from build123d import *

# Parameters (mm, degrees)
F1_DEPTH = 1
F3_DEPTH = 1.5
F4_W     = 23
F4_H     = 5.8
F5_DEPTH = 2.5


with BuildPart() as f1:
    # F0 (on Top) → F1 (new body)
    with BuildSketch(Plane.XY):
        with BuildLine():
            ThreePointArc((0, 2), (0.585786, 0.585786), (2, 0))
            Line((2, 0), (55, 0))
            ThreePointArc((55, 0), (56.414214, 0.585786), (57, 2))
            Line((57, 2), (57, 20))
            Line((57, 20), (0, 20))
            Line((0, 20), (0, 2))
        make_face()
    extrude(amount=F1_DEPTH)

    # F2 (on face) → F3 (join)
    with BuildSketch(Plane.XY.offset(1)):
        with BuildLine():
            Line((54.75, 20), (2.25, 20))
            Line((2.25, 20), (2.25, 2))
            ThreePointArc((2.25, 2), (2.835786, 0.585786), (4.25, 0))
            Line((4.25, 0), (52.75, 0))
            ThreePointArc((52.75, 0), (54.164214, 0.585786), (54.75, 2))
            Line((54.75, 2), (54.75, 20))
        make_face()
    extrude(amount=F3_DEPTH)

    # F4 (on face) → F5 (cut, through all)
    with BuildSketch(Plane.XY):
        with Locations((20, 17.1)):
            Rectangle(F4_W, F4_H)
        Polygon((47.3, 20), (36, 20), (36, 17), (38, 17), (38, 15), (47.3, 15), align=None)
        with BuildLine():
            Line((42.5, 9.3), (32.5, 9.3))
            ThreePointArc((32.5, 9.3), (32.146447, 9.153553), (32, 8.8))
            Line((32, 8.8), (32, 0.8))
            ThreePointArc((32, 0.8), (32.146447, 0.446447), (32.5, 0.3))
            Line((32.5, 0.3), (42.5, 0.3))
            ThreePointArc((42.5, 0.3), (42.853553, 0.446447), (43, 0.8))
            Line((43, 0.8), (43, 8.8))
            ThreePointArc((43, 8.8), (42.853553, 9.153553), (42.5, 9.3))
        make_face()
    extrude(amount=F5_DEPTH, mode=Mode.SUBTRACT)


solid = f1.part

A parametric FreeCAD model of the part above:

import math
import FreeCAD as App
import Part
import Sketcher

doc = App.newDocument("Part")
body = doc.addObject("PartDesign::Body", "Body")

# Sketch on XY plane
sketch1 = doc.addObject("Sketcher::SketchObject", "Sketch")
body.addObject(sketch1)
sketch1.AttachmentSupport = (doc.XY_Plane, [""])
sketch1.MapMode = "FlatFace"
sketch1.addGeometry([
    Part.ArcOfCircle(Part.Circle(App.Vector(2, 2, 0), App.Vector(0, 0, 1), 2), math.radians(180), math.radians(270)),  # 0
    Part.LineSegment(App.Vector(2, 0, 0), App.Vector(55, 0, 0)),  # 1
    Part.ArcOfCircle(Part.Circle(App.Vector(55, 2, 0), App.Vector(0, 0, 1), 2), math.radians(-90), math.radians(0)),  # 2
    Part.LineSegment(App.Vector(57, 2, 0), App.Vector(57, 20, 0)),  # 3
    Part.LineSegment(App.Vector(57, 20, 0), App.Vector(0, 20, 0)),  # 4
    Part.LineSegment(App.Vector(0, 20, 0), App.Vector(0, 2, 0)),  # 5
], False)
sketch1.addConstraint([
    Sketcher.Constraint("Tangent", 0, 2, 1, 1),
    Sketcher.Constraint("Tangent", 1, 2, 2, 1),
    Sketcher.Constraint("Tangent", 2, 2, 3, 1),
    Sketcher.Constraint("Coincident", 3, 2, 4, 1),
    Sketcher.Constraint("Coincident", 4, 2, 5, 1),
    Sketcher.Constraint("Tangent", 5, 2, 0, 1),
    Sketcher.Constraint("Horizontal", 1),
    Sketcher.Constraint("Vertical", 3),
    Sketcher.Constraint("Horizontal", 4),
    Sketcher.Constraint("Vertical", 5),
    Sketcher.Constraint("Equal", 0, 2),
    Sketcher.Constraint("PointOnObject", 0, 2, -1),
    Sketcher.Constraint("PointOnObject", 4, 2, -2),
    Sketcher.Constraint("Radius", 0, 1.999999),
    Sketcher.Constraint("DistanceX", 1, 1, 1, 2, 53.0),
    Sketcher.Constraint("DistanceY", 3, 1, 3, 2, 18.0),
])
pad1 = doc.addObject("PartDesign::Pad", "Pad")
body.addObject(pad1)
pad1.Profile = sketch1
pad1.Length = 1

# Sketch on XY plane
sketch2 = doc.addObject("Sketcher::SketchObject", "Sketch001")
body.addObject(sketch2)
sketch2.AttachmentSupport = (doc.XY_Plane, [""])
sketch2.MapMode = "FlatFace"
sketch2.AttachmentOffset = App.Placement(App.Vector(0, 0, 1), App.Rotation())
sketch2.addGeometry([
    Part.LineSegment(App.Vector(54.8, 20, 0), App.Vector(2.2, 20, 0)),  # 0
    Part.LineSegment(App.Vector(2.2, 20, 0), App.Vector(2.2, 2, 0)),  # 1
    Part.ArcOfCircle(Part.Circle(App.Vector(4.2, 2, 0), App.Vector(0, 0, 1), 2), math.radians(180), math.radians(270)),  # 2
    Part.LineSegment(App.Vector(4.2, 0, 0), App.Vector(52.8, 0, 0)),  # 3
    Part.ArcOfCircle(Part.Circle(App.Vector(52.8, 2, 0), App.Vector(0, 0, 1), 2), math.radians(-90), math.radians(0)),  # 4
    Part.LineSegment(App.Vector(54.8, 2, 0), App.Vector(54.8, 20, 0)),  # 5
], False)
sketch2.addConstraint([
    Sketcher.Constraint("Coincident", 0, 2, 1, 1),
    Sketcher.Constraint("Tangent", 1, 2, 2, 1),
    Sketcher.Constraint("Tangent", 2, 2, 3, 1),
    Sketcher.Constraint("Tangent", 3, 2, 4, 1),
    Sketcher.Constraint("Tangent", 4, 2, 5, 1),
    Sketcher.Constraint("Coincident", 5, 2, 0, 1),
    Sketcher.Constraint("Horizontal", 0),
    Sketcher.Constraint("Vertical", 1),
    Sketcher.Constraint("Horizontal", 3),
    Sketcher.Constraint("Vertical", 5),
    Sketcher.Constraint("Equal", 2, 4),
    Sketcher.Constraint("PointOnObject", 2, 2, -1),
    Sketcher.Constraint("Radius", 2, 1.999999),
    Sketcher.Constraint("DistanceY", 1, 2, 1, 1, 18.0),
    Sketcher.Constraint("DistanceX", 0, 2, 0, 1, 52.5),
    Sketcher.Constraint("DistanceX", -1, 1, 2, 3, 4.249999),
])
pad2 = doc.addObject("PartDesign::Pad", "Pad001")
body.addObject(pad2)
pad2.Profile = sketch2
pad2.Length = 1.5

# Sketch on XY plane
sketch3 = doc.addObject("Sketcher::SketchObject", "Sketch002")
body.addObject(sketch3)
sketch3.AttachmentSupport = (doc.XY_Plane, [""])
sketch3.MapMode = "FlatFace"
sketch3.addGeometry([
    Part.LineSegment(App.Vector(8.5, 20, 0), App.Vector(8.5, 14.2, 0)),  # 0
    Part.LineSegment(App.Vector(8.5, 14.2, 0), App.Vector(31.5, 14.2, 0)),  # 1
    Part.LineSegment(App.Vector(31.5, 14.2, 0), App.Vector(31.5, 20, 0)),  # 2
    Part.LineSegment(App.Vector(31.5, 20, 0), App.Vector(8.5, 20, 0)),  # 3
    Part.LineSegment(App.Vector(47.3, 20, 0), App.Vector(36, 20, 0)),  # 4
    Part.LineSegment(App.Vector(36, 20, 0), App.Vector(36, 17, 0)),  # 5
    Part.LineSegment(App.Vector(36, 17, 0), App.Vector(38, 17, 0)),  # 6
    Part.LineSegment(App.Vector(38, 17, 0), App.Vector(38, 15, 0)),  # 7
    Part.LineSegment(App.Vector(38, 15, 0), App.Vector(47.3, 15, 0)),  # 8
    Part.LineSegment(App.Vector(47.3, 15, 0), App.Vector(47.3, 20, 0)),  # 9
    Part.LineSegment(App.Vector(42.5, 9.3, 0), App.Vector(32.5, 9.3, 0)),  # 10
    Part.ArcOfCircle(Part.Circle(App.Vector(32.5, 8.8, 0), App.Vector(0, 0, 1), 0.5), math.radians(90), math.radians(180)),  # 11
    Part.LineSegment(App.Vector(32, 8.8, 0), App.Vector(32, 0.8, 0)),  # 12
    Part.ArcOfCircle(Part.Circle(App.Vector(32.5, 0.8, 0), App.Vector(0, 0, 1), 0.5), math.radians(-180), math.radians(-90)),  # 13
    Part.LineSegment(App.Vector(32.5, 0.3, 0), App.Vector(42.5, 0.3, 0)),  # 14
    Part.ArcOfCircle(Part.Circle(App.Vector(42.5, 0.8, 0), App.Vector(0, 0, 1), 0.5), math.radians(-90), math.radians(0)),  # 15
    Part.LineSegment(App.Vector(43, 0.8, 0), App.Vector(43, 8.8, 0)),  # 16
    Part.ArcOfCircle(Part.Circle(App.Vector(42.5, 8.8, 0), App.Vector(0, 0, 1), 0.5), math.radians(0), math.radians(90)),  # 17
], False)
sketch3.addConstraint([
    Sketcher.Constraint("Coincident", 0, 2, 1, 1),
    Sketcher.Constraint("Coincident", 1, 2, 2, 1),
    Sketcher.Constraint("Coincident", 2, 2, 3, 1),
    Sketcher.Constraint("Coincident", 3, 2, 0, 1),
    Sketcher.Constraint("Coincident", 4, 2, 5, 1),
    Sketcher.Constraint("Coincident", 5, 2, 6, 1),
    Sketcher.Constraint("Coincident", 6, 2, 7, 1),
    Sketcher.Constraint("Coincident", 7, 2, 8, 1),
    Sketcher.Constraint("Coincident", 8, 2, 9, 1),
    Sketcher.Constraint("Coincident", 9, 2, 4, 1),
    Sketcher.Constraint("Coincident", 10, 2, 11, 1),
    Sketcher.Constraint("Coincident", 11, 2, 12, 1),
    Sketcher.Constraint("Coincident", 12, 2, 13, 1),
    Sketcher.Constraint("Coincident", 13, 2, 14, 1),
    Sketcher.Constraint("Coincident", 14, 2, 15, 1),
    Sketcher.Constraint("Coincident", 15, 2, 16, 1),
    Sketcher.Constraint("Coincident", 16, 2, 17, 1),
    Sketcher.Constraint("Coincident", 17, 2, 10, 1),
    Sketcher.Constraint("Vertical", 0),
    Sketcher.Constraint("Horizontal", 1),
    Sketcher.Constraint("Vertical", 2),
    Sketcher.Constraint("Horizontal", 3),
    Sketcher.Constraint("Horizontal", 4),
    Sketcher.Constraint("Vertical", 5),
    Sketcher.Constraint("Horizontal", 6),
    Sketcher.Constraint("Vertical", 7),
    Sketcher.Constraint("Horizontal", 8),
    Sketcher.Constraint("Vertical", 9),
    Sketcher.Constraint("Horizontal", 10),
    Sketcher.Constraint("Vertical", 12),
    Sketcher.Constraint("Horizontal", 14),
    Sketcher.Constraint("Vertical", 16),
    Sketcher.Constraint("Equal", 11, 13),
    Sketcher.Constraint("Equal", 13, 15),
    Sketcher.Constraint("Equal", 15, 17),
    Sketcher.Constraint("Horizontal", 3, 2, 4, 2),
    Sketcher.Constraint("Horizontal", 17, 3, 11, 2),
    Sketcher.Constraint("Horizontal", 15, 3, 12, 2),
    Sketcher.Constraint("Horizontal", 12, 2, 15, 2),
    Sketcher.Constraint("Horizontal", 11, 2, 16, 2),
    Sketcher.Constraint("Vertical", 13, 3, 10, 2),
    Sketcher.Constraint("Vertical", 10, 2, 13, 2),
    Sketcher.Constraint("Vertical", 17, 3, 14, 2),
    Sketcher.Constraint("Vertical", 14, 2, 17, 2),
    Sketcher.Constraint("Equal", 6, 7),
    Sketcher.Constraint("Radius", 11, 0.500001),
    Sketcher.Constraint("DistanceX", 1, 1, 1, 2, 23.0),
    Sketcher.Constraint("DistanceX", 6, 1, 6, 2, 2.0),
    Sketcher.Constraint("DistanceX", 10, 2, 10, 1, 10.0),
    Sketcher.Constraint("DistanceY", 5, 2, 5, 1, 3.0),
    Sketcher.Constraint("DistanceY", 12, 2, 12, 1, 8.0),
    Sketcher.Constraint("DistanceX", 4, 2, 4, 1, 11.3),
    Sketcher.Constraint("DistanceY", 0, 2, 0, 1, 5.8),
    Sketcher.Constraint("DistanceY", -1, 1, 2, 2, 20.0),
    Sketcher.Constraint("DistanceX", -1, 1, 4, 2, 36.0),
    Sketcher.Constraint("DistanceX", -1, 1, 11, 2, 32.0),
    Sketcher.Constraint("DistanceX", 0, 2, 11, 3, 24.000001),
    Sketcher.Constraint("DistanceY", -1, 1, 11, 3, 8.799999),
])
pocket1 = doc.addObject("PartDesign::Pocket", "Pocket")
body.addObject(pocket1)
pocket1.Profile = sketch3
pocket1.Type = "ThroughAll"
pocket1.Reversed = True

doc.recompute()
